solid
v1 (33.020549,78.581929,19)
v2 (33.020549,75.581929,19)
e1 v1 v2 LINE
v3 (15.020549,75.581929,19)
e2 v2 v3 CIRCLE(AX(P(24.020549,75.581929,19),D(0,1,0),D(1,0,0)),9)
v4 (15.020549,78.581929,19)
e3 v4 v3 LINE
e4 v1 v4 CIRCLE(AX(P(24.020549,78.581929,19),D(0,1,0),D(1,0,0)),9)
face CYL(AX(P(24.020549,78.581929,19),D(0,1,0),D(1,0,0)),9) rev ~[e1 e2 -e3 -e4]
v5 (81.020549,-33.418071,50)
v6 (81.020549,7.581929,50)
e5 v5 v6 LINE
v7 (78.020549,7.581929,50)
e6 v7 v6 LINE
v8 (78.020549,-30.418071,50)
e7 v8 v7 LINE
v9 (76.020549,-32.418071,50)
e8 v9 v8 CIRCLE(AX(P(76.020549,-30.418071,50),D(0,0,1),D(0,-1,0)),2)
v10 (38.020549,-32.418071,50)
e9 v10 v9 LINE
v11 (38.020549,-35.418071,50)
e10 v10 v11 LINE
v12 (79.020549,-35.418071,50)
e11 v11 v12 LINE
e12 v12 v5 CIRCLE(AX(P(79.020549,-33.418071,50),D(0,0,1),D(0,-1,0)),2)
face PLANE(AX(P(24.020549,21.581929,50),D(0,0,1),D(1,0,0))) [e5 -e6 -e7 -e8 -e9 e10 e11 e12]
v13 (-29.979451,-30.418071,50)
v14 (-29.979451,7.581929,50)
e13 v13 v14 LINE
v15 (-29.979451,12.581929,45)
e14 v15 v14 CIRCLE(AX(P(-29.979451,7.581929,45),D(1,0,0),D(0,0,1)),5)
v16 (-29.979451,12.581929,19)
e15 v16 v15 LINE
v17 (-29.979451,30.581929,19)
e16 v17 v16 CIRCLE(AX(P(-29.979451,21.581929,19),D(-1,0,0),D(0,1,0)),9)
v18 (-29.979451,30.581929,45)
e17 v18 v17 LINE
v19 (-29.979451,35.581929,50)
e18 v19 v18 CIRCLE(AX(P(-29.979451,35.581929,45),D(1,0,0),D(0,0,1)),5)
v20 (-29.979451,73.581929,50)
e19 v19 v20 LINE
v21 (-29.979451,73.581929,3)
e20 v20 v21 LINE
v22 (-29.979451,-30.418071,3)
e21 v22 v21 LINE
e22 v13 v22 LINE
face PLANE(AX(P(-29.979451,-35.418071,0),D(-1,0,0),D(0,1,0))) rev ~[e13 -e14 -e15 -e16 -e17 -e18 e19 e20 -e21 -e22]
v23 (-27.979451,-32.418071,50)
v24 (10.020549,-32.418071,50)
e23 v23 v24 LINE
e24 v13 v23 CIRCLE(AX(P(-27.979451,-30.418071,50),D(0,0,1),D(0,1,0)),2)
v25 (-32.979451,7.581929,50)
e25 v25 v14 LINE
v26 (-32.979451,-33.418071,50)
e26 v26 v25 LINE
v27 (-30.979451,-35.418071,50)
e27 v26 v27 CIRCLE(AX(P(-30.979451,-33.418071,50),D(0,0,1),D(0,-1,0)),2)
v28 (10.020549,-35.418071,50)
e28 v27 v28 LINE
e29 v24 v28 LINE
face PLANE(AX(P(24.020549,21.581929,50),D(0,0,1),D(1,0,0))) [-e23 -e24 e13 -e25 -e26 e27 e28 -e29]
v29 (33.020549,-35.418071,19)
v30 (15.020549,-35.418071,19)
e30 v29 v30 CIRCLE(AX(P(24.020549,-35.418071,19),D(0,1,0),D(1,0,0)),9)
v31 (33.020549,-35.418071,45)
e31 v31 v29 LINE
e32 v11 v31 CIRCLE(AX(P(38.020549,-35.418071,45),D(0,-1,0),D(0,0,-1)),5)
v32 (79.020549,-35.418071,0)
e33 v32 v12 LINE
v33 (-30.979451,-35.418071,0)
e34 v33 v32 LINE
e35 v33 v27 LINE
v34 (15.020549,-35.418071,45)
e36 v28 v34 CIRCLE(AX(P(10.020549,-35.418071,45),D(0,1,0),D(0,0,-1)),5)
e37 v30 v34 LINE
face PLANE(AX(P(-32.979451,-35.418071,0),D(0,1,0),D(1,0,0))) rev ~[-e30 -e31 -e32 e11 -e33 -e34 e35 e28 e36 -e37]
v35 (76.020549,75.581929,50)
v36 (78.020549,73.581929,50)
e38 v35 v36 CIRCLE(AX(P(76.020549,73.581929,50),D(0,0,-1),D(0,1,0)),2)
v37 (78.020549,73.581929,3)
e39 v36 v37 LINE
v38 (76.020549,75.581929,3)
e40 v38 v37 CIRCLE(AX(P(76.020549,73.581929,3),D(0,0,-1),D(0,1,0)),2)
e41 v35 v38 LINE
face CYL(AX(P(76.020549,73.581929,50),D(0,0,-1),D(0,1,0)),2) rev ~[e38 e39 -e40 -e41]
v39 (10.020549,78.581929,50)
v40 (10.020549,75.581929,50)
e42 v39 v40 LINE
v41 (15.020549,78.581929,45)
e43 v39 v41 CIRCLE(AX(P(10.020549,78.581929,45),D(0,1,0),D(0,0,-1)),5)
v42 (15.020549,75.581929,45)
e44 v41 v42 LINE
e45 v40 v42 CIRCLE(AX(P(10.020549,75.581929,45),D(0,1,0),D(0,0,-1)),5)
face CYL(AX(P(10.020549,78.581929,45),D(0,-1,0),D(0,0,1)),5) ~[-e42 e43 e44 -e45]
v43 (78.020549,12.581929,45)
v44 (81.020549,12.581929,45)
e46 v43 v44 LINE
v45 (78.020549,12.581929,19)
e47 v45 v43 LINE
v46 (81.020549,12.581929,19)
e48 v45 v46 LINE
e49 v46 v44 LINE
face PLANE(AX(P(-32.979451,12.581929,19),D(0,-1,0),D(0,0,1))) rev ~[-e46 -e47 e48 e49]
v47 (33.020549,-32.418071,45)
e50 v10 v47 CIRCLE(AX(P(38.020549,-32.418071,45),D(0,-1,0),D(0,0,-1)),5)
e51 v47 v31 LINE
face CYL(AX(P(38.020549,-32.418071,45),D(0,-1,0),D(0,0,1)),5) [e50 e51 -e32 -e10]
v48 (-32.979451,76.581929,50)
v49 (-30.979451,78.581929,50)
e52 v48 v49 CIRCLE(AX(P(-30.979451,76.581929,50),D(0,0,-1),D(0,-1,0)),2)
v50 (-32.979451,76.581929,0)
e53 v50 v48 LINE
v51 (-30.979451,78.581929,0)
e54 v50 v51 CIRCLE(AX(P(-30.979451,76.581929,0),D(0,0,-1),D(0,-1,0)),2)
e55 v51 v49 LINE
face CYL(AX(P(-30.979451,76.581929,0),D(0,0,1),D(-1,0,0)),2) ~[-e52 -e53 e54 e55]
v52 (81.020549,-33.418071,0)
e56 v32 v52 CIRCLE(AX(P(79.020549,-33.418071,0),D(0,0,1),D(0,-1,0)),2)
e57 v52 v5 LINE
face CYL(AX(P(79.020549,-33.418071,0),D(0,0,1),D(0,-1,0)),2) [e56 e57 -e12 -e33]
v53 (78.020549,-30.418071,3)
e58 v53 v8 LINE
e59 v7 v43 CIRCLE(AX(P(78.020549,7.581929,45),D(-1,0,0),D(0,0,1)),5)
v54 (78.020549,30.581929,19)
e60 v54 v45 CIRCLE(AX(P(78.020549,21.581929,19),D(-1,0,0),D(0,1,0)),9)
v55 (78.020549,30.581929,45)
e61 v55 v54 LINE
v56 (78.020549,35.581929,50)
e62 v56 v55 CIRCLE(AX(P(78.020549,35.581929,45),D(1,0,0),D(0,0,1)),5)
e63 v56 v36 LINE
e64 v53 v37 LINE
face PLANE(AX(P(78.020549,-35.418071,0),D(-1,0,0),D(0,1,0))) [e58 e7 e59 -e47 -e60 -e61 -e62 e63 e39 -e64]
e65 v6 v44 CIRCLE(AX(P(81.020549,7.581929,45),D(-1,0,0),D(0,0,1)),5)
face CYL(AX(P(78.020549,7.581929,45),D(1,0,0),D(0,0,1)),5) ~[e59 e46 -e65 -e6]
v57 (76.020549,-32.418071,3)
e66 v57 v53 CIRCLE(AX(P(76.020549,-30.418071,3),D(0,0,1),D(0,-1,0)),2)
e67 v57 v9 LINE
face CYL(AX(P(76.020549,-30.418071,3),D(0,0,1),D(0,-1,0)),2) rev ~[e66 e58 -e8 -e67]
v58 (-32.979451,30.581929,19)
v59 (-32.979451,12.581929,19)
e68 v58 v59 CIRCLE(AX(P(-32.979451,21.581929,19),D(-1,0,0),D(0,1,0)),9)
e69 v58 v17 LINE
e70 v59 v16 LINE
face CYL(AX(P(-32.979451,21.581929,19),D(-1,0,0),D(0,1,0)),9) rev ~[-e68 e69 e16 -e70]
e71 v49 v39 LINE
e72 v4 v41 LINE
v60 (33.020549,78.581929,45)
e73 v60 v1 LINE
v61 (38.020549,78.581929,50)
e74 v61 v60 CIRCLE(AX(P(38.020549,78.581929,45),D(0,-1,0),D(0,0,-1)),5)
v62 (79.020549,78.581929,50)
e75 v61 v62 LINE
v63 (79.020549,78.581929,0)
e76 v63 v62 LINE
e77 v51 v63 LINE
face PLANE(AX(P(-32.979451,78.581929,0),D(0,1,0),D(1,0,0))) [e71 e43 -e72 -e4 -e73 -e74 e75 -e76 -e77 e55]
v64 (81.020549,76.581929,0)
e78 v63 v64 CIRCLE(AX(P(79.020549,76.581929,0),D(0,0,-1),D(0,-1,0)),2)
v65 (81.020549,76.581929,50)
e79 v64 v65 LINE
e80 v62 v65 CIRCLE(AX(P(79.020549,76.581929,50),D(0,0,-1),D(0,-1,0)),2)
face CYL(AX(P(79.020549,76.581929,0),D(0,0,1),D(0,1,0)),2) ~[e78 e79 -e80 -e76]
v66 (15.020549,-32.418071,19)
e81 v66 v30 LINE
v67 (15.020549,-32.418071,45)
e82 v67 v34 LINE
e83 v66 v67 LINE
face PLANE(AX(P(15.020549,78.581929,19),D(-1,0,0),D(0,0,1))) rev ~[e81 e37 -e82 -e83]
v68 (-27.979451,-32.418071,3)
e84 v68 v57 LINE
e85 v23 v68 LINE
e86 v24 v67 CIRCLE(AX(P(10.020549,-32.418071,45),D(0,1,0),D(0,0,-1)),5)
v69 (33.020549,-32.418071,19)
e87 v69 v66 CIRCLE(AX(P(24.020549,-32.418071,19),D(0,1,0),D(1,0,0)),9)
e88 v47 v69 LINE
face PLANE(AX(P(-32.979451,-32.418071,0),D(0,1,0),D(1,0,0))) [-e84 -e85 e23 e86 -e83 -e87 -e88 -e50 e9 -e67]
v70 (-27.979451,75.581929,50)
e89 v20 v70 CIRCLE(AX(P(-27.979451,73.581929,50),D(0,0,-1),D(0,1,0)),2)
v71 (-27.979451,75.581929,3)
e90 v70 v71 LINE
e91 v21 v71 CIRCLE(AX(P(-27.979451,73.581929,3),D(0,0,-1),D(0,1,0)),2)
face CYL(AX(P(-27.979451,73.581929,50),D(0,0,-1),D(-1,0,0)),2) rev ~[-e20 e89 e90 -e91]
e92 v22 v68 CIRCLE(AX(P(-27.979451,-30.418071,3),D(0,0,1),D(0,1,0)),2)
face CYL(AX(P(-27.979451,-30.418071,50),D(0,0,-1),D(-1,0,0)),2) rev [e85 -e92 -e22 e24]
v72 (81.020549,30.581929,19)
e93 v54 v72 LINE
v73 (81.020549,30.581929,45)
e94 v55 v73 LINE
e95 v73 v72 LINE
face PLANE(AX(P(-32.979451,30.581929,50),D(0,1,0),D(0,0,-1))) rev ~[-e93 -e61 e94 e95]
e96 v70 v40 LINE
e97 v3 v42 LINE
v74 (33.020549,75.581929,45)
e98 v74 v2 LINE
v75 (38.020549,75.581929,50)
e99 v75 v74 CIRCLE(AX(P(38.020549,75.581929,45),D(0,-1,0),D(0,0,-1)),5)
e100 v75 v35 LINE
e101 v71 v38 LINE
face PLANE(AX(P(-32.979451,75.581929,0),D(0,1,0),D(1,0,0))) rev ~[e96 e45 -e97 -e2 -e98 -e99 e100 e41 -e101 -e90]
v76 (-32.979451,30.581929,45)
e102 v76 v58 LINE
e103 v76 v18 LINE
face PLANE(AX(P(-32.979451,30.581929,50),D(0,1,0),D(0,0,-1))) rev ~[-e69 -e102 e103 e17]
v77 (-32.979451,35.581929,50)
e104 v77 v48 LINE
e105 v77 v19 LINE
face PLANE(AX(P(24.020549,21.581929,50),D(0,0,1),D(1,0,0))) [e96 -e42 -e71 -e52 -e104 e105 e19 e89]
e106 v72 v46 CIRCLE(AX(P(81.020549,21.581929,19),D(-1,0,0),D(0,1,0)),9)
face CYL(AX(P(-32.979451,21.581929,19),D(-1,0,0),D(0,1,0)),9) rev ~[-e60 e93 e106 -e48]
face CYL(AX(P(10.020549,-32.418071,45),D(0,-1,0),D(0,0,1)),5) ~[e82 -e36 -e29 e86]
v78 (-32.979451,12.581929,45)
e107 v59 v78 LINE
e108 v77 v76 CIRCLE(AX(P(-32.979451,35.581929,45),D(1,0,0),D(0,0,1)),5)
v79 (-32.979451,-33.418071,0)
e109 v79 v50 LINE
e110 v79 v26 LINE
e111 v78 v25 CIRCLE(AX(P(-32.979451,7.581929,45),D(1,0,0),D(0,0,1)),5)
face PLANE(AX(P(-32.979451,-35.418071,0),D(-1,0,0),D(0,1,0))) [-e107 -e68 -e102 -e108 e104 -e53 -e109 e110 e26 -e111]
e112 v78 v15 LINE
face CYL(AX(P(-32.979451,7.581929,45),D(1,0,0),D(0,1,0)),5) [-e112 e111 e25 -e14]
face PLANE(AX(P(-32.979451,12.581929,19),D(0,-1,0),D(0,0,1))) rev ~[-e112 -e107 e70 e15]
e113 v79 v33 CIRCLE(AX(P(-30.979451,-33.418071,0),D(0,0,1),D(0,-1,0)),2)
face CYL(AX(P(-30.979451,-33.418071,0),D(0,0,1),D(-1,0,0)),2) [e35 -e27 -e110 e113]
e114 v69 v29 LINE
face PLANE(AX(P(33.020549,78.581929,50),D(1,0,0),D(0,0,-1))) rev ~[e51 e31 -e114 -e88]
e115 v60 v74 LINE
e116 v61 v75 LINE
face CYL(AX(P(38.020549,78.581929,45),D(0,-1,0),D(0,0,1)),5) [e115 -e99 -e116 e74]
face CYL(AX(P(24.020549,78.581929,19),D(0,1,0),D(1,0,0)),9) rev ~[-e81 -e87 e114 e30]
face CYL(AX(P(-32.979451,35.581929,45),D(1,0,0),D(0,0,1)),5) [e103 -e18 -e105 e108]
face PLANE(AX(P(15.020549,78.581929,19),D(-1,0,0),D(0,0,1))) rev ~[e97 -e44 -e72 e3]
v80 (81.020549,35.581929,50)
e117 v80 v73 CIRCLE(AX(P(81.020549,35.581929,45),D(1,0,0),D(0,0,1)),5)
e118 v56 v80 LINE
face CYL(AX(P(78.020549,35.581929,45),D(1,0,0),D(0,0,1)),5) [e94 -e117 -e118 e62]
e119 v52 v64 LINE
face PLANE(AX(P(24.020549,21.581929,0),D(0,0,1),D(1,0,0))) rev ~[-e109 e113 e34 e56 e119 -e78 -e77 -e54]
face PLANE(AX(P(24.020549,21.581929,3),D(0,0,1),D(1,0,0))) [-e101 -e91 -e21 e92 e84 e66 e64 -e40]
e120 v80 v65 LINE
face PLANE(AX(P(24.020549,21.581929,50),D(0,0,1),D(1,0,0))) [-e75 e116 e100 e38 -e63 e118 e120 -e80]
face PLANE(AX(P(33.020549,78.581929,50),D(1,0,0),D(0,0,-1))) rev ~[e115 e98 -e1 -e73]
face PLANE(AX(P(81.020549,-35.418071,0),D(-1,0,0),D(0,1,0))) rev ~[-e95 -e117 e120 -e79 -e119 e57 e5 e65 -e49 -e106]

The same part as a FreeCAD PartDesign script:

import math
import FreeCAD as App
import Part
import Sketcher
from FreeCAD import Vector
Q = App.Units.Quantity


def edges_at(feature, points):
    """Names of the edges that pass closest to the given points."""
    edges = feature.Shape.Edges
    near = lambda p: min(range(len(edges)), key=lambda i: edges[i].distToShape(Part.Vertex(*p))[0])
    return sorted({f"Edge{near(p) + 1}" for p in points})


def faces_at(feature, points):
    """Names of the faces that lie closest to the given points."""
    faces = feature.Shape.Faces
    near = lambda p: min(range(len(faces)), key=lambda i: faces[i].distToShape(Part.Vertex(*p))[0])
    return sorted({f"Face{near(p) + 1}" for p in points})


def add_polygon(sketch, points):
    """Adds a closed chain of lines whose ends are joined by coincident constraints."""
    first, n = sketch.GeometryCount, len(points)
    for a, b in zip(points, points[1:] + points[:1]):
        sketch.addGeometry(Part.LineSegment(App.Vector(*a, 0), App.Vector(*b, 0)), False)
    for i in range(n):
        sketch.addConstraint(Sketcher.Constraint("Coincident", first + i, 2, first + (i + 1) % n, 1))

doc = App.newDocument("Part")
body = doc.addObject("PartDesign::Body", "Body")

# Sketch on XY plane
sketch1 = body.newObject("Sketcher::SketchObject", "Sketch")
sketch1.AttachmentSupport = (doc.getObject("XY_Plane"), [""])
sketch1.MapMode = "FlatFace"
add_polygon(sketch1, [(-33, 79), (-33, -35), (81, -35), (81, 79)])  # lines 0-3
sketch1.addConstraint(Sketcher.Constraint("Vertical", 0))
sketch1.addConstraint(Sketcher.Constraint("Horizontal", 1))
sketch1.addConstraint(Sketcher.Constraint("Vertical", 2))
sketch1.addConstraint(Sketcher.Constraint("Horizontal", 3))
sketch1.addConstraint(Sketcher.Constraint("Equal", 3, 0))
sketch1.addConstraint(Sketcher.Constraint("DistanceX", 1, 1, 1, 2, Q("114 mm")))
sketch1.addConstraint(Sketcher.Constraint("DistanceX", 0, 2, -1, 1, Q("32.979451 mm")))
sketch1.addConstraint(Sketcher.Constraint("DistanceY", 0, 2, -1, 1, Q("35.418071 mm")))
pad1 = body.newObject("PartDesign::Pad", "Pad")
pad1.Profile = sketch1
pad1.Length = 50
doc.recompute()

thickness = body.newObject("PartDesign::Thickness", "Thickness")
thickness.Base = (pad1, faces_at(pad1, [(24.021, 21.582, 50)]))
thickness.Value = 3
thickness.Reversed = True
thickness.Join = "Arc"

# Sketch on YZ plane
sketch2 = body.newObject("Sketcher::SketchObject", "Sketch001")
sketch2.AttachmentSupport = (doc.getObject("YZ_Plane"), [""])
sketch2.MapMode = "FlatFace"
sketch2.AttachmentOffset = App.Placement(Vector(0, 0, -32.979451), App.Rotation())
sketch2.addGeometry(Part.LineSegment(Vector(13, 19, 0), Vector(13, 50, 0)), False)
sketch2.addGeometry(Part.LineSegment(Vector(13, 50, 0), Vector(31, 50, 0)), False)
sketch2.addGeometry(Part.LineSegment(Vector(31, 50, 0), Vector(31, 19, 0)), False)
sketch2.addGeometry(Part.ArcOfCircle(Part.Circle(Vector(22, 19, 0), Vector(0, 0, 1), 9), math.radians(180), math.radians(360)), False)
sketch2.addConstraint(Sketcher.Constraint("Coincident", 0, 2, 1, 1))
sketch2.addConstraint(Sketcher.Constraint("Coincident", 1, 2, 2, 1))
sketch2.addConstraint(Sketcher.Constraint("Tangent", 2, 2, 3, 2))
sketch2.addConstraint(Sketcher.Constraint("Tangent", 3, 1, 0, 1))
sketch2.addConstraint(Sketcher.Constraint("Vertical", 0))
sketch2.addConstraint(Sketcher.Constraint("Horizontal", 1))
sketch2.addConstraint(Sketcher.Constraint("Vertical", 2))
sketch2.addConstraint(Sketcher.Constraint("Radius", 3, Q("9 mm")))
sketch2.addConstraint(Sketcher.Constraint("DistanceY", 0, 1, 0, 2, Q("31 mm")))
sketch2.addConstraint(Sketcher.Constraint("DistanceY", -1, 1, 3, 3, Q("19 mm")))
sketch2.addConstraint(Sketcher.Constraint("DistanceX", -1, 1, 3, 3, Q("21.581929 mm")))
pocket1 = body.newObject("PartDesign::Pocket", "Pocket")
pocket1.Profile = sketch2
pocket1.Type = "ThroughAll"
pocket1.Reversed = True

# Sketch on XZ plane
sketch3 = body.newObject("Sketcher::SketchObject", "Sketch002")
sketch3.AttachmentSupport = (doc.getObject("XZ_Plane"), [""])
sketch3.MapMode = "FlatFace"
sketch3.AttachmentOffset = App.Placement(Vector(0, 0, -78.581929), App.Rotation())
sketch3.addGeometry(Part.LineSegment(Vector(33, 50, 0), Vector(33, 19, 0)), False)
sketch3.addGeometry(Part.ArcOfCircle(Part.Circle(Vector(24, 19, 0), Vector(0, 0, 1), 9), math.radians(180), math.radians(360)), False)
sketch3.addGeometry(Part.LineSegment(Vector(15, 19, 0), Vector(15, 50, 0)), False)
sketch3.addGeometry(Part.LineSegment(Vector(15, 50, 0), Vector(33, 50, 0)), False)
sketch3.addConstraint(Sketcher.Constraint("Tangent", 0, 2, 1, 2))
sketch3.addConstraint(Sketcher.Constraint("Tangent", 1, 1, 2, 1))
sketch3.addConstraint(Sketcher.Constraint("Coincident", 2, 2, 3, 1))
sketch3.addConstraint(Sketcher.Constraint("Coincident", 3, 2, 0, 1))
sketch3.addConstraint(Sketcher.Constraint("Vertical", 0))
sketch3.addConstraint(Sketcher.Constraint("Vertical", 2))
sketch3.addConstraint(Sketcher.Constraint("Horizontal", 3))
sketch3.addConstraint(Sketcher.Constraint("Radius", 1, Q("9 mm")))
sketch3.addConstraint(Sketcher.Constraint("DistanceY", 0, 2, 0, 1, Q("31 mm")))
sketch3.addConstraint(Sketcher.Constraint("DistanceY", -1, 1, 1, 3, Q("19 mm")))
sketch3.addConstraint(Sketcher.Constraint("DistanceX", -1, 1, 1, 3, Q("24.020549 mm")))
pocket2 = body.newObject("PartDesign::Pocket", "Pocket001")
pocket2.Profile = sketch3
pocket2.Type = "ThroughAll"
pocket2.Reversed = True
doc.recompute()

fillet = body.newObject("PartDesign::Fillet", "Fillet")
fillet.Base = (pocket2, edges_at(pocket2, [
    (15.021, 77.082, 50),
    (15.021, -33.918, 50),
    (33.021, 77.082, 50),
    (33.021, -33.918, 50),
    (79.521, 12.582, 50),
    (-31.479, 12.582, 50),
    (79.521, 30.582, 50),
    (-31.479, 30.582, 50),
]))
fillet.Radius = 5
doc.recompute()

fillet2 = body.newObject("PartDesign::Fillet", "Fillet001")
fillet2.Base = (fillet, edges_at(fillet, [
    (81.021, -35.418, 25),
    (-32.979, -35.418, 25),
    (-32.979, 78.582, 25),
    (81.021, 78.582, 25),
]))
fillet2.Radius = 2
doc.recompute()

fillet3 = body.newObject("PartDesign::Fillet", "Fillet002")
fillet3.Base = (fillet2, edges_at(fillet2, [
    (-29.979, -32.418, 26.5),
    (-29.979, 75.582, 26.5),
    (78.021, 75.582, 26.5),
    (78.021, -32.418, 26.5),
]))
fillet3.Radius = 2

doc.recompute()
